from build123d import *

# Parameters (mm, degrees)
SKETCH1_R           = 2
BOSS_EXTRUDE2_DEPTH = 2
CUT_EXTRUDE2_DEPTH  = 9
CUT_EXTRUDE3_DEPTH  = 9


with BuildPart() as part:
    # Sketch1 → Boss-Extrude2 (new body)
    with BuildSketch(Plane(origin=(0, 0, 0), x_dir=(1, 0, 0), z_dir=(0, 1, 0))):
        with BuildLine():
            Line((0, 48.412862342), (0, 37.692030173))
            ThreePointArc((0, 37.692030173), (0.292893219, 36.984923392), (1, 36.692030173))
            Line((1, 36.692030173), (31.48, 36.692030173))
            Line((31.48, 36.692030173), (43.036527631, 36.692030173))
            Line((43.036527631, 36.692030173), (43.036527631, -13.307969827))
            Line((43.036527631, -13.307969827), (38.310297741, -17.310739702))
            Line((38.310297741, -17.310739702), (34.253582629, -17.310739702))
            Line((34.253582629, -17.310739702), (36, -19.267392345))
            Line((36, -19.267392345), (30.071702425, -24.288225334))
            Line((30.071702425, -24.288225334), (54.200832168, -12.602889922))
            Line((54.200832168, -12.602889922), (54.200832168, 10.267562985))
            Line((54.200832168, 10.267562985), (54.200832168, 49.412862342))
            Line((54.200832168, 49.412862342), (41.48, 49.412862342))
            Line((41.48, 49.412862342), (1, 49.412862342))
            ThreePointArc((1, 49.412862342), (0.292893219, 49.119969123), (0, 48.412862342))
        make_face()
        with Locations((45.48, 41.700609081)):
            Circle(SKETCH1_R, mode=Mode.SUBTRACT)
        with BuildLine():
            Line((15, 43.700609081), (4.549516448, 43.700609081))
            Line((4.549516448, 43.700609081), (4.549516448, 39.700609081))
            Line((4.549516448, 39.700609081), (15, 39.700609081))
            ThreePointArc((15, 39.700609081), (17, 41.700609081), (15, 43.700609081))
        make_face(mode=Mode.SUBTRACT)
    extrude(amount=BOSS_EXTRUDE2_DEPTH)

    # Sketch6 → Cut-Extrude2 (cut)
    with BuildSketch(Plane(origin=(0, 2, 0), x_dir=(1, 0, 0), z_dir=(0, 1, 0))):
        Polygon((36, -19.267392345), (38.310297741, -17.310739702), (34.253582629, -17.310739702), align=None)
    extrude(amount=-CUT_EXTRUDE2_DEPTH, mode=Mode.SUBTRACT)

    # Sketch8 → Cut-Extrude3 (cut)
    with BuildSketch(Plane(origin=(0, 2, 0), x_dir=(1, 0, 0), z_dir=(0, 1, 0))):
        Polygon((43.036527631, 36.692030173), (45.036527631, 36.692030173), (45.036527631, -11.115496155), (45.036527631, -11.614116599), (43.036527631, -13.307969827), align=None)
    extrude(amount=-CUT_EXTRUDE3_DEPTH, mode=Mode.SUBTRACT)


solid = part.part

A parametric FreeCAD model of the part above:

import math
import FreeCAD as App
import Part
import Sketcher
from FreeCAD import Vector

doc = App.newDocument("Part")
body = doc.addObject("PartDesign::Body", "Body")

# Sketch on XZ plane
sketch1 = doc.addObject("Sketcher::SketchObject", "Sketch")
body.addObject(sketch1)
sketch1.AttachmentSupport = (doc.XZ_Plane, [""])
sketch1.MapMode = "FlatFace"
sketch1.addGeometry(Part.LineSegment(Vector(0, -48.4, 0), Vector(0, -37.7, 0)), False)
sketch1.addGeometry(Part.ArcOfCircle(Part.Circle(Vector(1, -37.7, 0), Vector(0, 0, 1), 1), math.radians(90), math.radians(180)), False)
sketch1.addGeometry(Part.LineSegment(Vector(1, -36.7, 0), Vector(43, -36.7, 0)), False)
sketch1.addGeometry(Part.LineSegment(Vector(43, -36.7, 0), Vector(43, 13.3, 0)), False)
sketch1.addGeometry(Part.LineSegment(Vector(43, 13.3, 0), Vector(38.3, 17.3, 0)), False)
sketch1.addGeometry(Part.LineSegment(Vector(38.3, 17.3, 0), Vector(34.3, 17.3, 0)), False)
sketch1.addGeometry(Part.LineSegment(Vector(34.3, 17.3, 0), Vector(36, 19.3, 0)), False)
sketch1.addGeometry(Part.LineSegment(Vector(36, 19.3, 0), Vector(30.1, 24.3, 0)), False)
sketch1.addGeometry(Part.LineSegment(Vector(30.1, 24.3, 0), Vector(54.2, 12.6, 0)), False)
sketch1.addGeometry(Part.LineSegment(Vector(54.2, 12.6, 0), Vector(54.2, -49.4, 0)), False)
sketch1.addGeometry(Part.LineSegment(Vector(54.2, -49.4, 0), Vector(1, -49.4, 0)), False)
sketch1.addGeometry(Part.ArcOfCircle(Part.Circle(Vector(1, -48.4, 0), Vector(0, 0, 1), 1), math.radians(-180), math.radians(-90)), False)
sketch1.addGeometry(Part.LineSegment(Vector(4.5, -43.7, 0), Vector(15, -43.7, 0)), False)
sketch1.addGeometry(Part.ArcOfCircle(Part.Circle(Vector(15, -41.7, 0), Vector(0, 0, 1), 2), math.radians(-90), math.radians(90)), False)
sketch1.addGeometry(Part.LineSegment(Vector(15, -39.7, 0), Vector(4.5, -39.7, 0)), False)
sketch1.addGeometry(Part.LineSegment(Vector(4.5, -39.7, 0), Vector(4.5, -43.7, 0)), False)
sketch1.addGeometry(Part.Circle(Vector(45.5, -41.7, 0), Vector(0, 0, 1), 2), False)
sketch1.addConstraint(Sketcher.Constraint("Tangent", 0, 2, 1, 2))
sketch1.addConstraint(Sketcher.Constraint("Tangent", 1, 1, 2, 1))
sketch1.addConstraint(Sketcher.Constraint("Coincident", 2, 2, 3, 1))
sketch1.addConstraint(Sketcher.Constraint("Coincident", 3, 2, 4, 1))
sketch1.addConstraint(Sketcher.Constraint("Coincident", 4, 2, 5, 1))
sketch1.addConstraint(Sketcher.Constraint("Coincident", 5, 2, 6, 1))
sketch1.addConstraint(Sketcher.Constraint("Coincident", 6, 2, 7, 1))
sketch1.addConstraint(Sketcher.Constraint("Coincident", 7, 2, 8, 1))
sketch1.addConstraint(Sketcher.Constraint("Coincident", 8, 2, 9, 1))
sketch1.addConstraint(Sketcher.Constraint("Coincident", 9, 2, 10, 1))
sketch1.addConstraint(Sketcher.Constraint("Tangent", 10, 2, 11, 2))
sketch1.addConstraint(Sketcher.Constraint("Tangent", 11, 1, 0, 1))
sketch1.addConstraint(Sketcher.Constraint("Tangent", 12, 2, 13, 1))
sketch1.addConstraint(Sketcher.Constraint("Tangent", 13, 2, 14, 1))
sketch1.addConstraint(Sketcher.Constraint("Coincident", 14, 2, 15, 1))
sketch1.addConstraint(Sketcher.Constraint("Coincident", 15, 2, 12, 1))
sketch1.addConstraint(Sketcher.Constraint("Vertical", 0))
sketch1.addConstraint(Sketcher.Constraint("Horizontal", 2))
sketch1.addConstraint(Sketcher.Constraint("Vertical", 3))
sketch1.addConstraint(Sketcher.Constraint("Horizontal", 5))
sketch1.addConstraint(Sketcher.Constraint("Vertical", 9))
sketch1.addConstraint(Sketcher.Constraint("Horizontal", 10))
sketch1.addConstraint(Sketcher.Constraint("Horizontal", 12))
sketch1.addConstraint(Sketcher.Constraint("Horizontal", 14))
sketch1.addConstraint(Sketcher.Constraint("Vertical", 15))
sketch1.addConstraint(Sketcher.Constraint("Equal", 1, 11))
sketch1.addConstraint(Sketcher.Constraint("Equal", 13, 16))
sketch1.addConstraint(Sketcher.Constraint("PointOnObject", 0, 2, -2))
sketch1.addConstraint(Sketcher.Constraint("Parallel", 4, 7))
sketch1.addConstraint(Sketcher.Constraint("Horizontal", 13, 3, 16, 3))
sketch1.addConstraint(Sketcher.Constraint("Diameter", 16, 4.0))
sketch1.addConstraint(Sketcher.Constraint("Radius", 1, 1.0))
sketch1.addConstraint(Sketcher.Constraint("DistanceY", 3, 1, 3, 2, 50.0))
sketch1.addConstraint(Sketcher.Constraint("DistanceX", -1, 1, 13, 3, 15.0))
sketch1.addConstraint(Sketcher.Constraint("DistanceX", -1, 1, 6, 2, 36.0))
sketch1.addConstraint(Sketcher.Constraint("DistanceX", -1, 1, 16, 3, 45.48))
sketch1.addConstraint(Sketcher.Constraint("DistanceY", 16, 3, 6, 2, 60.968001))
sketch1.addConstraint(Sketcher.Constraint("Distance", 7, 7.76875))
sketch1.addConstraint(Sketcher.Constraint("DistanceX", 2, 1, 2, 2, 42.036528))
sketch1.addConstraint(Sketcher.Constraint("DistanceX", 5, 2, 5, 1, 4.056715))
sketch1.addConstraint(Sketcher.Constraint("DistanceX", 10, 2, 10, 1, 53.200832))
sketch1.addConstraint(Sketcher.Constraint("DistanceX", 12, 1, 12, 2, 10.450484))
sketch1.addConstraint(Sketcher.Constraint("DistanceY", 0, 1, 0, 2, 10.720832))
sketch1.addConstraint(Sketcher.Constraint("DistanceY", 9, 2, 9, 1, 62.015752))
sketch1.addConstraint(Sketcher.Constraint("DistanceY", 1, 3, -1, 1, 37.69203))
sketch1.addConstraint(Sketcher.Constraint("DistanceY", 13, 3, -1, 1, 41.700609))
sketch1.addConstraint(Sketcher.Constraint("DistanceY", -1, 1, 4, 2, 17.31074))
sketch1.addConstraint(Sketcher.Constraint("DistanceX", 4, 2, 3, 2, 4.72623))
pad1 = doc.addObject("PartDesign::Pad", "Pad")
body.addObject(pad1)
pad1.Profile = sketch1
pad1.Length = 2
pad1.Reversed = True

# Sketch on XZ plane
sketch2 = doc.addObject("Sketcher::SketchObject", "Sketch001")
body.addObject(sketch2)
sketch2.AttachmentSupport = (doc.XZ_Plane, [""])
sketch2.MapMode = "FlatFace"
sketch2.AttachmentOffset = App.Placement(Vector(0, 0, -2), App.Rotation())
sketch2.addGeometry(Part.LineSegment(Vector(36, 19.3, 0), Vector(38.3, 17.3, 0)), False)
sketch2.addGeometry(Part.LineSegment(Vector(38.3, 17.3, 0), Vector(34.3, 17.3, 0)), False)
sketch2.addGeometry(Part.LineSegment(Vector(34.3, 17.3, 0), Vector(36, 19.3, 0)), False)
sketch2.addConstraint(Sketcher.Constraint("Coincident", 0, 2, 1, 1))
sketch2.addConstraint(Sketcher.Constraint("Coincident", 1, 2, 2, 1))
sketch2.addConstraint(Sketcher.Constraint("Coincident", 2, 2, 0, 1))
sketch2.addConstraint(Sketcher.Constraint("Horizontal", 1))
sketch2.addConstraint(Sketcher.Constraint("DistanceX", -1, 1, 2, 2, 36.0))
sketch2.addConstraint(Sketcher.Constraint("DistanceX", 1, 2, 1, 1, 4.056715))
sketch2.addConstraint(Sketcher.Constraint("DistanceY", -1, 1, 0, 2, 17.31074))
sketch2.addConstraint(Sketcher.Constraint("Distance", 0, 3.027535))
sketch2.addConstraint(Sketcher.Constraint("Distance", 2, 2.622682))
pocket1 = doc.addObject("PartDesign::Pocket", "Pocket")
body.addObject(pocket1)
pocket1.Profile = sketch2
pocket1.Length = 9
pocket1.Reversed = True

# Sketch on XZ plane
sketch3 = doc.addObject("Sketcher::SketchObject", "Sketch002")
body.addObject(sketch3)
sketch3.AttachmentSupport = (doc.XZ_Plane, [""])
sketch3.MapMode = "FlatFace"
sketch3.AttachmentOffset = App.Placement(Vector(0, 0, -2), App.Rotation())
sketch3.addGeometry(Part.LineSegment(Vector(45, -36.7, 0), Vector(43, -36.7, 0)), False)
sketch3.addGeometry(Part.LineSegment(Vector(43, -36.7, 0), Vector(43, 13.3, 0)), False)
sketch3.addGeometry(Part.LineSegment(Vector(43, 13.3, 0), Vector(45, 11.6, 0)), False)
sketch3.addGeometry(Part.LineSegment(Vector(45, 11.6, 0), Vector(45, -36.7, 0)), False)
sketch3.addConstraint(Sketcher.Constraint("Coincident", 0, 2, 1, 1))
sketch3.addConstraint(Sketcher.Constraint("Coincident", 1, 2, 2, 1))
sketch3.addConstraint(Sketcher.Constraint("Coincident", 2, 2, 3, 1))
sketch3.addConstraint(Sketcher.Constraint("Coincident", 3, 2, 0, 1))
sketch3.addConstraint(Sketcher.Constraint("Horizontal", 0))
sketch3.addConstraint(Sketcher.Constraint("Vertical", 1))
sketch3.addConstraint(Sketcher.Constraint("Vertical", 3))
sketch3.addConstraint(Sketcher.Constraint("DistanceX", 0, 2, 0, 1, 2.0))
sketch3.addConstraint(Sketcher.Constraint("DistanceY", 1, 1, 1, 2, 50.0))
sketch3.addConstraint(Sketcher.Constraint("DistanceY", 3, 2, 3, 1, 48.306147))
sketch3.addConstraint(Sketcher.Constraint("DistanceY", 0, 2, -1, 1, 36.69203))
sketch3.addConstraint(Sketcher.Constraint("DistanceX", -1, 1, 0, 2, 43.036528))
pocket2 = doc.addObject("PartDesign::Pocket", "Pocket001")
body.addObject(pocket2)
pocket2.Profile = sketch3
pocket2.Length = 9
pocket2.Reversed = True

doc.recompute()
